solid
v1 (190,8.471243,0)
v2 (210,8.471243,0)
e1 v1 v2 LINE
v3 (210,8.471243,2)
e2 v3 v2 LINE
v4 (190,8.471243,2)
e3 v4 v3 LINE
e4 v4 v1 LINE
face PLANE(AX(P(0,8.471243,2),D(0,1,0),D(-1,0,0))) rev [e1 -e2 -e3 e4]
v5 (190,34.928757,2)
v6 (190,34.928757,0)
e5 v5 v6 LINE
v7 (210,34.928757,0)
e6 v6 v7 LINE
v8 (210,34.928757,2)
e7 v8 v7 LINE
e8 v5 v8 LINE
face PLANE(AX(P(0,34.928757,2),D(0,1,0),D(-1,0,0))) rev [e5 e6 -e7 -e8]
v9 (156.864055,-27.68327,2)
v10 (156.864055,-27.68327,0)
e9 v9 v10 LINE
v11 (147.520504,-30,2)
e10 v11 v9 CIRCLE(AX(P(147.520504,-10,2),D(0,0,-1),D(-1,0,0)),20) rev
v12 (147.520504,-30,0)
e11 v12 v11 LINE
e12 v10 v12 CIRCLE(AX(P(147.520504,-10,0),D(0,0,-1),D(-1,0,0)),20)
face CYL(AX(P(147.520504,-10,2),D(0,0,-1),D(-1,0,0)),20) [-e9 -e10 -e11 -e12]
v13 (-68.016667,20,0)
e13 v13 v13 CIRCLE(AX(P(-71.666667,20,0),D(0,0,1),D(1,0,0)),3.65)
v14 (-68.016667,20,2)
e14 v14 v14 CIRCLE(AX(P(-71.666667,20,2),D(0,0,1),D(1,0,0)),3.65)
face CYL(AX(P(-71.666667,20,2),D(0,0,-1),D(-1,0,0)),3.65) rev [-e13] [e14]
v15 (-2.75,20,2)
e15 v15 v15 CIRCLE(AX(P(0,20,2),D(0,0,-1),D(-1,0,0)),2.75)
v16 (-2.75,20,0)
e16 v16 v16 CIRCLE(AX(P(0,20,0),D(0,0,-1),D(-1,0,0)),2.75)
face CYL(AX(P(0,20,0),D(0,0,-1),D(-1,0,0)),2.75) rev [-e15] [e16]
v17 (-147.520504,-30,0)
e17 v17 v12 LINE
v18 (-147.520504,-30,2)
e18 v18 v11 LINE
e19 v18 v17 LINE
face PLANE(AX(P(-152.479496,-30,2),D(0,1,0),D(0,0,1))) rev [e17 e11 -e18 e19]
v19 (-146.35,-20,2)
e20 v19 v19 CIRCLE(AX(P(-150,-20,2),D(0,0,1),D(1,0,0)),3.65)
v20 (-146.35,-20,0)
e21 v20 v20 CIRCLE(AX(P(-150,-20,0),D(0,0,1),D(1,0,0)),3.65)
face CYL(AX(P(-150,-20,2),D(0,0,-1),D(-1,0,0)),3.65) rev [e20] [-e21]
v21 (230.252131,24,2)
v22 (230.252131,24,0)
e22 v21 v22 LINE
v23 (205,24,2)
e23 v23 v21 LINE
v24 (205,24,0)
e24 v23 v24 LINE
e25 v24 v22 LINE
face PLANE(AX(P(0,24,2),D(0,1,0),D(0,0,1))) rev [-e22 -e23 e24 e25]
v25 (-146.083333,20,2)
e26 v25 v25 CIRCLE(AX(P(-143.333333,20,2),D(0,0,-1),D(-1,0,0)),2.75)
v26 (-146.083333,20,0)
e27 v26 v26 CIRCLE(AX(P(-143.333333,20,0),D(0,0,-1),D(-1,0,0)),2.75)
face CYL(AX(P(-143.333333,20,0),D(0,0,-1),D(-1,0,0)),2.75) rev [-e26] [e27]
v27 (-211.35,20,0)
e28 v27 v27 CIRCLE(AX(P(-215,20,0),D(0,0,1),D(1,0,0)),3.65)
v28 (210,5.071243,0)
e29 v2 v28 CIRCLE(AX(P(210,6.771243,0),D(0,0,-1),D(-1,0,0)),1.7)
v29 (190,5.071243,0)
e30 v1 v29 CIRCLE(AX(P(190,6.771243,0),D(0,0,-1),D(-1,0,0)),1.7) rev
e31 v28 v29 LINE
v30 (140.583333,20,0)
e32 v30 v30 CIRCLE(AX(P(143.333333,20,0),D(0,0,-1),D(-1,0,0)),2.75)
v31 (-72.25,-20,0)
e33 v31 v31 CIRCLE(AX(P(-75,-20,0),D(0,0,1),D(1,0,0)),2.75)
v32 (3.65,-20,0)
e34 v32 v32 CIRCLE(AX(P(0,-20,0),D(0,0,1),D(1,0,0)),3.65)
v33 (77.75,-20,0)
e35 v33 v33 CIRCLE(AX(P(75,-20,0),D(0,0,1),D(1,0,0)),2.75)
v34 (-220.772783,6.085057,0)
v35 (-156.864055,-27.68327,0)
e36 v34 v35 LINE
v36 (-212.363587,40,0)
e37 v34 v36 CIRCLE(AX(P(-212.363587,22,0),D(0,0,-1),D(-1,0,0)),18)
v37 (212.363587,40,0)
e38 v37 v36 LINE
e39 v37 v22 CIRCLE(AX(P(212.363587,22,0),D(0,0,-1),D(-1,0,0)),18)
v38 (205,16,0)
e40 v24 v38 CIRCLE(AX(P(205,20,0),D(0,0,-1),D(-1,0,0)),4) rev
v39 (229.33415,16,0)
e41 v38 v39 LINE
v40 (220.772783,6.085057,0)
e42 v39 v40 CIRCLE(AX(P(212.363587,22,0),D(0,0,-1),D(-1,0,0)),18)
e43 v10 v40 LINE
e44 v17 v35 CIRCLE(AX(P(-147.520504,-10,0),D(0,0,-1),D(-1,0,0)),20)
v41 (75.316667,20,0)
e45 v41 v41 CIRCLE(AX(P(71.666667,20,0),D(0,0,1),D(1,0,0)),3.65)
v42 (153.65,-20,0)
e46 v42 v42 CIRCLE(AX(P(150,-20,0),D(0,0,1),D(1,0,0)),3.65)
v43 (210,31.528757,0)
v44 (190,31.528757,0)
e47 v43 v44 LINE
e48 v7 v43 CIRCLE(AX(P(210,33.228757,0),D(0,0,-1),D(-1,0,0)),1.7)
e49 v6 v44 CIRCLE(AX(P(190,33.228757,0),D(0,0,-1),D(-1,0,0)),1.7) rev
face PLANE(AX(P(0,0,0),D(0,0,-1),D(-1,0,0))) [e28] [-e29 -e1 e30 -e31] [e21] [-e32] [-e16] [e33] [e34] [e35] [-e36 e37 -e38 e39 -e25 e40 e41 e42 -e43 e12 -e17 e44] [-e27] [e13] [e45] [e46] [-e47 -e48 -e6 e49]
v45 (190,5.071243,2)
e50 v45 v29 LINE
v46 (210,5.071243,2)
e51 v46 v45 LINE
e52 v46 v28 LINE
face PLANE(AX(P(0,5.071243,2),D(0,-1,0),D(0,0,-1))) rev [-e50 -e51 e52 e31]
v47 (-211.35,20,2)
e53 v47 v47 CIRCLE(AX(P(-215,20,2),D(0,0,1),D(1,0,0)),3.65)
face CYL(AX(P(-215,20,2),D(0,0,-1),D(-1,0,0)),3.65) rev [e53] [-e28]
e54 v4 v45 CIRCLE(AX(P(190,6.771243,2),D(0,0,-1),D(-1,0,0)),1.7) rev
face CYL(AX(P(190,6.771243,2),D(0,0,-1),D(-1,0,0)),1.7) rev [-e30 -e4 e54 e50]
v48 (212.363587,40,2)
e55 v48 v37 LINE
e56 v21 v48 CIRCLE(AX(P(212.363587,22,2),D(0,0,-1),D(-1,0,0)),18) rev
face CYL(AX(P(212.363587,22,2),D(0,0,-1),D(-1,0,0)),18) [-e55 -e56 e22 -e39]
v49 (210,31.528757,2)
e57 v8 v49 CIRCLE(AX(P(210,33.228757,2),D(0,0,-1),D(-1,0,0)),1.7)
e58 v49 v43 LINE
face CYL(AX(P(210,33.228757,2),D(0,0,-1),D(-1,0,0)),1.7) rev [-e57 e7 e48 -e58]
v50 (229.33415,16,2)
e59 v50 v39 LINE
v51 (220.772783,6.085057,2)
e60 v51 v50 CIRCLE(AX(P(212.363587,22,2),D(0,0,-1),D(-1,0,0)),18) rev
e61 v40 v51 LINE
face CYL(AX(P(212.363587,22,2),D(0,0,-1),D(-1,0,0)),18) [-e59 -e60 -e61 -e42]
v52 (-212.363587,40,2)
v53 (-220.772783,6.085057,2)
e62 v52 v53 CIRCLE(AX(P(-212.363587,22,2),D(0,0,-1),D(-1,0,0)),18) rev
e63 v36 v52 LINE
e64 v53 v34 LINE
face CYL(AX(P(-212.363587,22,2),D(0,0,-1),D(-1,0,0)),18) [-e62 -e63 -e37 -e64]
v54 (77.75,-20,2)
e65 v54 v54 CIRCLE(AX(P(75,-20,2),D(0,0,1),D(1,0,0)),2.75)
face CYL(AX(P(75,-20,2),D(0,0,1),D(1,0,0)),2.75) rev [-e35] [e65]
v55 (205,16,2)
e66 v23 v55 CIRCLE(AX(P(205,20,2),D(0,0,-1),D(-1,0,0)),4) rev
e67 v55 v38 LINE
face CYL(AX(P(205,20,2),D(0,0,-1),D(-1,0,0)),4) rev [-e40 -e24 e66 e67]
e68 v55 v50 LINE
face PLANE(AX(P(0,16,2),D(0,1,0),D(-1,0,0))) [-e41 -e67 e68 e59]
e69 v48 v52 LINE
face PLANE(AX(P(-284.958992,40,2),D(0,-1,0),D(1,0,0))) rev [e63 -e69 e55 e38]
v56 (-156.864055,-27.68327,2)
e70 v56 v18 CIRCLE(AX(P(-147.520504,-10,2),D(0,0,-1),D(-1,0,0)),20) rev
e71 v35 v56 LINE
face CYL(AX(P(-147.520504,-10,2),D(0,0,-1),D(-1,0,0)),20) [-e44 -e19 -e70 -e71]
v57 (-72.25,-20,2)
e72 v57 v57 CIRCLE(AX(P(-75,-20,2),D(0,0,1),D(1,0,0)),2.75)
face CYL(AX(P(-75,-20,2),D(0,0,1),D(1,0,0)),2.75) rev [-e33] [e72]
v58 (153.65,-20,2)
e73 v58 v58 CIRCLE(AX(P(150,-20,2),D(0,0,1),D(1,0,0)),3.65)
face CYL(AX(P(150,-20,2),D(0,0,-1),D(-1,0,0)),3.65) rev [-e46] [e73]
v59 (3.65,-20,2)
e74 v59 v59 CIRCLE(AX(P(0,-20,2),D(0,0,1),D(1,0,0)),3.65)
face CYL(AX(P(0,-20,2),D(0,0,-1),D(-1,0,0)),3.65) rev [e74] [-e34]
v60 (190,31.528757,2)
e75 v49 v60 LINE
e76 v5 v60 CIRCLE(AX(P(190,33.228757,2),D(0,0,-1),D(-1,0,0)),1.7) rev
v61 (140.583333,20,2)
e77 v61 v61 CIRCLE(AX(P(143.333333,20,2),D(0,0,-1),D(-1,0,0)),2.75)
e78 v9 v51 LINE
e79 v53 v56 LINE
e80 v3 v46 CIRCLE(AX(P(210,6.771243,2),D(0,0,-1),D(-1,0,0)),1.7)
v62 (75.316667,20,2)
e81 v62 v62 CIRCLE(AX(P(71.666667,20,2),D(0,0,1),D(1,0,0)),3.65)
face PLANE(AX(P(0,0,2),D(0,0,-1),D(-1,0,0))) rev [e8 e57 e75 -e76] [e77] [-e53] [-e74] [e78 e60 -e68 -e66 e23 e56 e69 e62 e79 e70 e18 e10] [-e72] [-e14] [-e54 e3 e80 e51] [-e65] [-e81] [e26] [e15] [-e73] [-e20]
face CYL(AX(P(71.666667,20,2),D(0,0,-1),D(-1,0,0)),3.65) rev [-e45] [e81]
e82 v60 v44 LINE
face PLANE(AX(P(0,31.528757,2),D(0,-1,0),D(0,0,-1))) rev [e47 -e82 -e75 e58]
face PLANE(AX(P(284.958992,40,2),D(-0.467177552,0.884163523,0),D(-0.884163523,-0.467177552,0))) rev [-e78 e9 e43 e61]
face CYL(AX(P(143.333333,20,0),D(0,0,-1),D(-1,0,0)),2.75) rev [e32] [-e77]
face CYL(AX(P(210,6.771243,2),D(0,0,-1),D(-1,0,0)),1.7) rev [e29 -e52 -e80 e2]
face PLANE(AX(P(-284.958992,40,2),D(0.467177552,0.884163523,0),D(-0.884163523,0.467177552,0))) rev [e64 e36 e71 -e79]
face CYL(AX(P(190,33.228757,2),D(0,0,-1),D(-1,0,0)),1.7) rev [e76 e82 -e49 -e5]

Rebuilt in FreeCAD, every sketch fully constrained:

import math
import FreeCAD as App
import Part
import Sketcher
from FreeCAD import Vector


def edges_at(feature, points):
    """Names of the edges that pass closest to the given points."""
    edges = feature.Shape.Edges
    near = lambda p: min(range(len(edges)), key=lambda i: edges[i].distToShape(Part.Vertex(*p))[0])
    return sorted({f"Edge{near(p) + 1}" for p in points})

doc = App.newDocument("Part")
body = doc.addObject("PartDesign::Body", "Body")

# Sketch on XY plane
sketch1 = body.newObject("Sketcher::SketchObject", "Sketch")
sketch1.AttachmentSupport = (doc.getObject("XY_Plane"), [""])
sketch1.MapMode = "FlatFace"
sketch1.addGeometry(Part.LineSegment(Vector(285, 40, 0), Vector(-285, 40, 0)), False)
sketch1.addGeometry(Part.LineSegment(Vector(-285, 40, 0), Vector(-152.5, -30, 0)), False)
sketch1.addGeometry(Part.LineSegment(Vector(-152.5, -30, 0), Vector(152.5, -30, 0)), False)
sketch1.addGeometry(Part.LineSegment(Vector(152.5, -30, 0), Vector(285, 40, 0)), False)
sketch1.addGeometry(Part.Circle(Vector(150, -20, 0), Vector(0, 0, 1), 3.6), False)
sketch1.addGeometry(Part.Circle(Vector(0, -20, 0), Vector(0, 0, 1), 3.6), False)
sketch1.addGeometry(Part.Circle(Vector(-150, -20, 0), Vector(0, 0, 1), 3.6), False)
sketch1.addGeometry(Part.Circle(Vector(215, 20, 0), Vector(0, 0, 1), 3.6), False)
sketch1.addGeometry(Part.Circle(Vector(71.7, 20, 0), Vector(0, 0, 1), 3.6), False)
sketch1.addGeometry(Part.Circle(Vector(-71.7, 20, 0), Vector(0, 0, 1), 3.6), False)
sketch1.addGeometry(Part.Circle(Vector(-215, 20, 0), Vector(0, 0, 1), 3.6), False)
sketch1.addConstraint(Sketcher.Constraint("Coincident", 0, 2, 1, 1))
sketch1.addConstraint(Sketcher.Constraint("Coincident", 1, 2, 2, 1))
sketch1.addConstraint(Sketcher.Constraint("Coincident", 2, 2, 3, 1))
sketch1.addConstraint(Sketcher.Constraint("Coincident", 3, 2, 0, 1))
sketch1.addConstraint(Sketcher.Constraint("Horizontal", 0))
sketch1.addConstraint(Sketcher.Constraint("Horizontal", 2))
sketch1.addConstraint(Sketcher.Constraint("Equal", 4, 5))
sketch1.addConstraint(Sketcher.Constraint("Equal", 5, 6))
sketch1.addConstraint(Sketcher.Constraint("Equal", 6, 7))
sketch1.addConstraint(Sketcher.Constraint("Equal", 7, 8))
sketch1.addConstraint(Sketcher.Constraint("Equal", 8, 9))
sketch1.addConstraint(Sketcher.Constraint("Equal", 9, 10))
sketch1.addConstraint(Sketcher.Constraint("Symmetric", 4, 3, 6, 3, -2))
sketch1.addConstraint(Sketcher.Constraint("Symmetric", 8, 3, 9, 3, -2))
sketch1.addConstraint(Sketcher.Constraint("Symmetric", 7, 3, 10, 3, -2))
sketch1.addConstraint(Sketcher.Constraint("PointOnObject", 5, 3, -2))
sketch1.addConstraint(Sketcher.Constraint("Horizontal", 4, 3, 5, 3))
sketch1.addConstraint(Sketcher.Constraint("Horizontal", 7, 3, 8, 3))
sketch1.addConstraint(Sketcher.Constraint("Equal", 1, 3))
sketch1.addConstraint(Sketcher.Constraint("Diameter", 4, 7.3))
sketch1.addConstraint(Sketcher.Constraint("DistanceX", -1, 1, 4, 3, 150.0))
sketch1.addConstraint(Sketcher.Constraint("DistanceY", 4, 3, -1, 1, 20.0))
sketch1.addConstraint(Sketcher.Constraint("DistanceX", -1, 1, 7, 3, 215.0))
sketch1.addConstraint(Sketcher.Constraint("DistanceY", -1, 1, 7, 3, 20.0))
sketch1.addConstraint(Sketcher.Constraint("DistanceY", -1, 1, 0, 2, 40.0))
sketch1.addConstraint(Sketcher.Constraint("DistanceY", 1, 2, -1, 1, 30.0))
sketch1.addConstraint(Sketcher.Constraint("DistanceX", 2, 1, 2, 2, 304.958992))
sketch1.addConstraint(Sketcher.Constraint("DistanceX", 0, 2, 0, 1, 569.917983))
sketch1.addConstraint(Sketcher.Constraint("DistanceX", 0, 2, -1, 1, 284.958992))
sketch1.addConstraint(Sketcher.Constraint("DistanceX", 0, 2, 8, 3, 356.625658))
pad1 = body.newObject("PartDesign::Pad", "Pad")
pad1.Profile = sketch1
pad1.Length = 2
doc.recompute()

fillet = body.newObject("PartDesign::Fillet", "Fillet")
fillet.Base = (pad1, edges_at(pad1, [(-284.959, 40, 1), (284.959, 40, 1)]))
fillet.Radius = 18
doc.recompute()

fillet2 = body.newObject("PartDesign::Fillet", "Fillet001")
fillet2.Base = (fillet, edges_at(fillet, [(152.479, -30, 1), (-152.479, -30, 1)]))
fillet2.Radius = 20

# Sketch on XY plane
sketch2 = body.newObject("Sketcher::SketchObject", "Sketch001")
sketch2.AttachmentSupport = (doc.getObject("XY_Plane"), [""])
sketch2.MapMode = "FlatFace"
sketch2.addGeometry(Part.Circle(Vector(200, 33.2, 0), Vector(0, 0, 1), 1.7), False)
sketch2.addGeometry(Part.Circle(Vector(200, 6.8, 0), Vector(0, 0, 1), 1.7), False)
sketch2.addConstraint(Sketcher.Constraint("Equal", 0, 1))
sketch2.addConstraint(Sketcher.Constraint("Vertical", 0, 3, 1, 3))
sketch2.addConstraint(Sketcher.Constraint("Diameter", 0, 3.4))
sketch2.addConstraint(Sketcher.Constraint("DistanceX", -1, 1, 0, 3, 200.0))
sketch2.addConstraint(Sketcher.Constraint("DistanceY", -1, 1, 0, 3, 33.228757))
sketch2.addConstraint(Sketcher.Constraint("DistanceY", -1, 1, 1, 3, 6.771243))
doc.recompute()
hole = body.newObject("PartDesign::Hole", "Hole")
hole.Profile = sketch2
hole.ThreadType = "None"
hole.Diameter = 3.4
hole.DepthType = "ThroughAll"
hole.Reversed = True

# Sketch on XY plane
sketch3 = body.newObject("Sketcher::SketchObject", "Sketch002")
sketch3.AttachmentSupport = (doc.getObject("XY_Plane"), [""])
sketch3.MapMode = "FlatFace"
sketch3.addGeometry(Part.LineSegment(Vector(229.3, 16, 0), Vector(205, 16, 0)), False)
sketch3.addGeometry(Part.ArcOfCircle(Part.Circle(Vector(205, 20, 0), Vector(0, 0, 1), 4), math.radians(90), math.radians(270)), False)
sketch3.addGeometry(Part.LineSegment(Vector(205, 24, 0), Vector(230.3, 24, 0)), False)
sketch3.addGeometry(Part.ArcOfCircle(Part.Circle(Vector(212.4, 22, 0), Vector(0, 0, 1), 18), math.radians(-19), math.radians(6)), False)
sketch3.addGeometry(Part.LineSegment(Vector(210, 31.5, 0), Vector(190, 31.5, 0)), False)
sketch3.addGeometry(Part.ArcOfCircle(Part.Circle(Vector(190, 33.2, 0), Vector(0, 0, 1), 1.7), math.radians(90), math.radians(270)), False)
sketch3.addGeometry(Part.LineSegment(Vector(190, 34.9, 0), Vector(210, 34.9, 0)), False)
sketch3.addGeometry(Part.ArcOfCircle(Part.Circle(Vector(210, 33.2, 0), Vector(0, 0, 1), 1.7), math.radians(-90), math.radians(90)), False)
sketch3.addGeometry(Part.LineSegment(Vector(210, 5.1, 0), Vector(190, 5.1, 0)), False)
sketch3.addGeometry(Part.ArcOfCircle(Part.Circle(Vector(190, 6.8, 0), Vector(0, 0, 1), 1.7), math.radians(90), math.radians(270)), False)
sketch3.addGeometry(Part.LineSegment(Vector(190, 8.5, 0), Vector(210, 8.5, 0)), False)
sketch3.addGeometry(Part.ArcOfCircle(Part.Circle(Vector(210, 6.8, 0), Vector(0, 0, 1), 1.7), math.radians(-90), math.radians(90)), False)
sketch3.addConstraint(Sketcher.Constraint("Tangent", 0, 2, 1, 2))
sketch3.addConstraint(Sketcher.Constraint("Tangent", 1, 1, 2, 1))
sketch3.addConstraint(Sketcher.Constraint("Coincident", 2, 2, 3, 2))
sketch3.addConstraint(Sketcher.Constraint("Coincident", 3, 1, 0, 1))
sketch3.addConstraint(Sketcher.Constraint("Tangent", 4, 2, 5, 2))
sketch3.addConstraint(Sketcher.Constraint("Tangent", 5, 1, 6, 1))
sketch3.addConstraint(Sketcher.Constraint("Tangent", 6, 2, 7, 2))
sketch3.addConstraint(Sketcher.Constraint("Tangent", 7, 1, 4, 1))
sketch3.addConstraint(Sketcher.Constraint("Tangent", 8, 2, 9, 2))
sketch3.addConstraint(Sketcher.Constraint("Tangent", 9, 1, 10, 1))
sketch3.addConstraint(Sketcher.Constraint("Tangent", 10, 2, 11, 2))
sketch3.addConstraint(Sketcher.Constraint("Tangent", 11, 1, 8, 1))
sketch3.addConstraint(Sketcher.Constraint("Horizontal", 0))
sketch3.addConstraint(Sketcher.Constraint("Horizontal", 2))
sketch3.addConstraint(Sketcher.Constraint("Horizontal", 4))
sketch3.addConstraint(Sketcher.Constraint("Horizontal", 6))
sketch3.addConstraint(Sketcher.Constraint("Horizontal", 8))
sketch3.addConstraint(Sketcher.Constraint("Horizontal", 10))
sketch3.addConstraint(Sketcher.Constraint("Equal", 7, 9))
sketch3.addConstraint(Sketcher.Constraint("Vertical", 5, 3, 9, 3))
sketch3.addConstraint(Sketcher.Constraint("Vertical", 7, 3, 11, 3))
sketch3.addConstraint(Sketcher.Constraint("Radius", 1, 4.0))
sketch3.addConstraint(Sketcher.Constraint("Radius", 3, 18.0))
sketch3.addConstraint(Sketcher.Constraint("Radius", 5, 1.7))
sketch3.addConstraint(Sketcher.Constraint("DistanceX", 4, 2, 4, 1, 20.0))
sketch3.addConstraint(Sketcher.Constraint("DistanceX", -1, 1, 1, 3, 205.0))
sketch3.addConstraint(Sketcher.Constraint("DistanceY", -1, 1, 1, 3, 20.0))
sketch3.addConstraint(Sketcher.Constraint("DistanceY", -1, 1, 3, 3, 22.0))
sketch3.addConstraint(Sketcher.Constraint("DistanceX", -1, 1, 5, 3, 190.0))
sketch3.addConstraint(Sketcher.Constraint("DistanceX", 0, 2, 0, 1, 24.33415))
sketch3.addConstraint(Sketcher.Constraint("DistanceY", -1, 1, 5, 3, 33.228757))
sketch3.addConstraint(Sketcher.Constraint("DistanceY", -1, 1, 9, 3, 6.771243))
pocket1 = body.newObject("PartDesign::Pocket", "Pocket")
pocket1.Profile = sketch3
pocket1.Type = "ThroughAll"
pocket1.Reversed = True

# Sketch on XY plane
sketch4 = body.newObject("Sketcher::SketchObject", "Sketch003")
sketch4.AttachmentSupport = (doc.getObject("XY_Plane"), [""])
sketch4.MapMode = "FlatFace"
sketch4.addGeometry(Part.Circle(Vector(-143.3, 20, 0), Vector(0, 0, 1), 2.8), False)
sketch4.addGeometry(Part.Circle(Vector(0, 20, 0), Vector(0, 0, 1), 2.8), False)
sketch4.addGeometry(Part.Circle(Vector(143.3, 20, 0), Vector(0, 0, 1), 2.8), False)
sketch4.addConstraint(Sketcher.Constraint("Equal", 0, 1))
sketch4.addConstraint(Sketcher.Constraint("Equal", 1, 2))
sketch4.addConstraint(Sketcher.Constraint("Symmetric", 0, 3, 2, 3, -2))
sketch4.addConstraint(Sketcher.Constraint("PointOnObject", 1, 3, -2))
sketch4.addConstraint(Sketcher.Constraint("Horizontal", 0, 3, 1, 3))
sketch4.addConstraint(Sketcher.Constraint("Diameter", 0, 5.5))
sketch4.addConstraint(Sketcher.Constraint("DistanceY", -1, 1, 0, 3, 20.0))
sketch4.addConstraint(Sketcher.Constraint("DistanceX", 0, 3, -1, 1, 143.333333))
doc.recompute()
hole2 = body.newObject("PartDesign::Hole", "Hole001")
hole2.Profile = sketch4
hole2.ThreadType = "None"
hole2.Diameter = 5.5
hole2.DepthType = "ThroughAll"
hole2.Reversed = True

# Sketch on XY plane
sketch5 = body.newObject("Sketcher::SketchObject", "Sketch004")
sketch5.AttachmentSupport = (doc.getObject("XY_Plane"), [""])
sketch5.MapMode = "FlatFace"
sketch5.AttachmentOffset = App.Placement(Vector(0, 0, 2), App.Rotation())
sketch5.addGeometry(Part.Circle(Vector(-75, -20, 0), Vector(0, 0, 1), 2.8), False)
sketch5.addGeometry(Part.Circle(Vector(75, -20, 0), Vector(0, 0, 1), 2.8), False)
sketch5.addConstraint(Sketcher.Constraint("Equal", 0, 1))
sketch5.addConstraint(Sketcher.Constraint("Symmetric", 0, 3, 1, 3, -2))
sketch5.addConstraint(Sketcher.Constraint("Diameter", 0, 5.5))
sketch5.addConstraint(Sketcher.Constraint("DistanceX", 0, 3, -1, 1, 75.0))
sketch5.addConstraint(Sketcher.Constraint("DistanceY", 0, 3, -1, 1, 20.0))
doc.recompute()
hole3 = body.newObject("PartDesign::Hole", "Hole002")
hole3.Profile = sketch5
hole3.ThreadType = "None"
hole3.Diameter = 5.5
hole3.DepthType = "ThroughAll"

doc.recompute()
